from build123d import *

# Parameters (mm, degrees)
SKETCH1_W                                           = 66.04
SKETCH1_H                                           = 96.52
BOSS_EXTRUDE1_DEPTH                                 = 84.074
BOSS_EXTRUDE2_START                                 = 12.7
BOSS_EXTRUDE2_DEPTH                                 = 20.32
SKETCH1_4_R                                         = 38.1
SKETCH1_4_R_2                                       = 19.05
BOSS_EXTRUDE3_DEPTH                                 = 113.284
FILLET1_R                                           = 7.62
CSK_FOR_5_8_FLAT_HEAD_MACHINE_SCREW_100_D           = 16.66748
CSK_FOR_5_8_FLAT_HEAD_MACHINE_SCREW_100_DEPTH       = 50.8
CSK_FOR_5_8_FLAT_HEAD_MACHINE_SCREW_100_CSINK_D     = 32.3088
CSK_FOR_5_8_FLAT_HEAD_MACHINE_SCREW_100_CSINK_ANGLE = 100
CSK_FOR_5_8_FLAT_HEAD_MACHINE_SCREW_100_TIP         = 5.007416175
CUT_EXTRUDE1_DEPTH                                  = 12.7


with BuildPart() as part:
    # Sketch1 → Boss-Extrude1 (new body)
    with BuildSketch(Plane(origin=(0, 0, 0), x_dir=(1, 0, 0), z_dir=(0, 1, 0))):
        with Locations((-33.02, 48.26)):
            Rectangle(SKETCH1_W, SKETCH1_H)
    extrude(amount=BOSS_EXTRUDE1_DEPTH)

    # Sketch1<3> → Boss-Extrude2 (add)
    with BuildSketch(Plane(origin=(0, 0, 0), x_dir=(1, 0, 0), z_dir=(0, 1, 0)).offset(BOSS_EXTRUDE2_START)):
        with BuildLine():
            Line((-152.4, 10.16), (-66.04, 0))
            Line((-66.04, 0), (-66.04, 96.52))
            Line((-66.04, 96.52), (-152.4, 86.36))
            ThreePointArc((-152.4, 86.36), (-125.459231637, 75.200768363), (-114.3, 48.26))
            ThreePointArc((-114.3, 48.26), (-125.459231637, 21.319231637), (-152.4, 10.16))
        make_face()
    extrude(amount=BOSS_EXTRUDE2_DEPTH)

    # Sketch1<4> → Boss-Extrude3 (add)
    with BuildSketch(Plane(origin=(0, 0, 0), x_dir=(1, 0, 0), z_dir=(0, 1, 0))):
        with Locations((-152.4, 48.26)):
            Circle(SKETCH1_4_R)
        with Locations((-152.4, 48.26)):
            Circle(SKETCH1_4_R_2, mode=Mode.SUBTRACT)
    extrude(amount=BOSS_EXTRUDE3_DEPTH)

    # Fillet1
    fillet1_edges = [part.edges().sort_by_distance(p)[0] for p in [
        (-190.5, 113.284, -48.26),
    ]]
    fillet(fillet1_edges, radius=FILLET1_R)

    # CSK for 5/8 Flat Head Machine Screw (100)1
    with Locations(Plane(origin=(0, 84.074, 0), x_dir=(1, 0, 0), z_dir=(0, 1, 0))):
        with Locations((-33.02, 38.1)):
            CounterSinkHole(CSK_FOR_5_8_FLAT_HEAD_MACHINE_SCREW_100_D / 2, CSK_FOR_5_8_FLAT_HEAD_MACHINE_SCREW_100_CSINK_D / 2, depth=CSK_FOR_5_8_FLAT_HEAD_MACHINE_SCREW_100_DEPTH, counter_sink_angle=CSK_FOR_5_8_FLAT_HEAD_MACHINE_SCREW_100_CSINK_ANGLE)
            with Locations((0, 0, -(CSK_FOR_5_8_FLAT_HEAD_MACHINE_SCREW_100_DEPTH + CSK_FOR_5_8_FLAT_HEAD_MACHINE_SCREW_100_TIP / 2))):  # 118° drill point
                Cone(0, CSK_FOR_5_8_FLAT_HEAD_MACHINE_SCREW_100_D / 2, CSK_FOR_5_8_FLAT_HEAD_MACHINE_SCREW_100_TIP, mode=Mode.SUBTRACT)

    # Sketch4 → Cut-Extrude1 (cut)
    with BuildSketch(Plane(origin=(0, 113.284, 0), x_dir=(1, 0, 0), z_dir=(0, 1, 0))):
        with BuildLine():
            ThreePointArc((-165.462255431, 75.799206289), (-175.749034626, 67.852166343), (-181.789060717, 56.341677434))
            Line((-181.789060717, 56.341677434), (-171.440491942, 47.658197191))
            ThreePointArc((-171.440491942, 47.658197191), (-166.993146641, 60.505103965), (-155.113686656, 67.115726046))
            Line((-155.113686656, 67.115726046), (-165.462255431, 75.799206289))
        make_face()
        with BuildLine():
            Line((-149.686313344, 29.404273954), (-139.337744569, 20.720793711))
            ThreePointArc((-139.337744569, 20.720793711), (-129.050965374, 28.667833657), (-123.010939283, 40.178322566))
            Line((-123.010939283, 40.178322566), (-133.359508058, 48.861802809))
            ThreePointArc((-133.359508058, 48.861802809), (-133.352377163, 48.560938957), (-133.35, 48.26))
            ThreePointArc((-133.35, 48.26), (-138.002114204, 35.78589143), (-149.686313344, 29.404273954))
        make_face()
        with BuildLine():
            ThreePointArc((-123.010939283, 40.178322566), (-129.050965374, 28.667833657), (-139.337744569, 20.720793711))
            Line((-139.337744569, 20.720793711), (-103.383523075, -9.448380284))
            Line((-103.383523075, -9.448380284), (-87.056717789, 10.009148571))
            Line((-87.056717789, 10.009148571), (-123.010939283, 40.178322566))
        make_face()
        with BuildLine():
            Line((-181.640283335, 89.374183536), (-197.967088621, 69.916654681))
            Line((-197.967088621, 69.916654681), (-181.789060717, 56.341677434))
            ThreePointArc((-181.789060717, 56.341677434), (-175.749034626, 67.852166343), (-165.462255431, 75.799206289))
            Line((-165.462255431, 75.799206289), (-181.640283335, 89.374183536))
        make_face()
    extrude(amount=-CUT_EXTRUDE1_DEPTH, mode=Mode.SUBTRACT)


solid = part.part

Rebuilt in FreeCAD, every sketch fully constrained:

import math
import FreeCAD as App
import Part
import Sketcher

V = App.Vector
Q = App.Units.Quantity


def edges_at(feature, points):
    """Names of the edges that pass closest to the given points."""
    edges = feature.Shape.Edges
    near = lambda p: min(range(len(edges)), key=lambda i: edges[i].distToShape(Part.Vertex(*p))[0])
    return sorted({f"Edge{near(p) + 1}" for p in points})

doc = App.newDocument("Part")
body = doc.addObject("PartDesign::Body", "Body")

sketch1 = doc.addObject("Sketcher::SketchObject", "Sketch")
body.addObject(sketch1)
sketch1.AttachmentSupport = (doc.XZ_Plane, [""])
sketch1.MapMode = "FlatFace"
sketch1.addGeometry([
    Part.LineSegment(V(-66, -97, 0), V(-66, 0, 0)),
    Part.LineSegment(V(-66, 0, 0), V(0, 0, 0)),
    Part.LineSegment(V(0, 0, 0), V(0, -97, 0)),
    Part.LineSegment(V(0, -97, 0), V(-66, -97, 0)),
], False)
sketch1.addConstraint([
    Sketcher.Constraint("Coincident", 0, 2, 1, 1),
    Sketcher.Constraint("Coincident", 1, 2, 2, 1),
    Sketcher.Constraint("Coincident", 2, 2, 3, 1),
    Sketcher.Constraint("Coincident", 3, 2, 0, 1),
    Sketcher.Constraint("Vertical", 0),
    Sketcher.Constraint("Horizontal", 1),
    Sketcher.Constraint("Vertical", 2),
    Sketcher.Constraint("Horizontal", 3),
    Sketcher.Constraint("Coincident", 1, 2, -1, 1),
    Sketcher.Constraint("DistanceX", 1, 1, 1, 2, Q("2.6 in")),
    Sketcher.Constraint("DistanceY", 0, 1, 0, 2, Q("3.8 in")),
])
pad1 = doc.addObject("PartDesign::Pad", "Pad")
body.addObject(pad1)
pad1.Profile = sketch1
pad1.Length = Q("3.31 in")
pad1.Reversed = True

sketch2 = doc.addObject("Sketcher::SketchObject", "Sketch001")
body.addObject(sketch2)
sketch2.AttachmentSupport = (doc.XZ_Plane, [""])
sketch2.MapMode = "FlatFace"
sketch2.AttachmentOffset = App.Placement(V(0, 0, -0.5 * 25.4), App.Rotation())
sketch2.addGeometry([
    Part.LineSegment(V(-152, -10, 0), V(-66, 0, 0)),
    Part.LineSegment(V(-66, 0, 0), V(-66, -97, 0)),
    Part.LineSegment(V(-66, -97, 0), V(-152, -86, 0)),
    Part.ArcOfCircle(Part.Circle(V(-152, -48, 0), V(0, 0, 1), 38), math.radians(-90), math.radians(0)),
    Part.ArcOfCircle(Part.Circle(V(-152, -48, 0), V(0, 0, 1), 38), math.radians(0), math.radians(90)),
], False)
sketch2.addConstraint([
    Sketcher.Constraint("Coincident", 0, 2, 1, 1),
    Sketcher.Constraint("Coincident", 1, 2, 2, 1),
    Sketcher.Constraint("Coincident", 2, 2, 3, 1),
    Sketcher.Constraint("Tangent", 3, 2, 4, 1),
    Sketcher.Constraint("Coincident", 4, 2, 0, 1),
    Sketcher.Constraint("Vertical", 1),
    Sketcher.Constraint("Equal", 3, 4),
    Sketcher.Constraint("PointOnObject", 0, 2, -1),
    Sketcher.Constraint("Horizontal", 4, 3, 3, 2),
    Sketcher.Constraint("Vertical", 4, 3, 2, 2),
    Sketcher.Constraint("Vertical", 2, 2, 4, 2),
    Sketcher.Constraint("Equal", 0, 2),
    Sketcher.Constraint("Radius", 3, Q("1.5 in")),
    Sketcher.Constraint("DistanceY", 1, 2, 1, 1, Q("3.8 in")),
    Sketcher.Constraint("DistanceX", 3, 3, -1, 1, Q("6 in")),
    Sketcher.Constraint("DistanceX", 0, 2, -1, 1, Q("2.6 in")),
])
pad2 = doc.addObject("PartDesign::Pad", "Pad001")
body.addObject(pad2)
pad2.Profile = sketch2
pad2.Length = Q("0.8 in")
pad2.Reversed = True

sketch3 = doc.addObject("Sketcher::SketchObject", "Sketch002")
body.addObject(sketch3)
sketch3.AttachmentSupport = (doc.XZ_Plane, [""])
sketch3.MapMode = "FlatFace"
sketch3.addGeometry([
    Part.Circle(V(-152, -48, 0), V(0, 0, 1), 38),
    Part.Circle(V(-152, -48, 0), V(0, 0, 1), 19),
], False)
sketch3.addConstraint([
    Sketcher.Constraint("Coincident", 1, 3, 0, 3),
    Sketcher.Constraint("Diameter", 0, Q("3 in")),
    Sketcher.Constraint("Diameter", 1, Q("1.5 in")),
    Sketcher.Constraint("DistanceX", 0, 3, -1, 1, Q("6 in")),
    Sketcher.Constraint("DistanceY", 0, 3, -1, 1, Q("1.9 in")),
])
pad3 = doc.addObject("PartDesign::Pad", "Pad002")
body.addObject(pad3)
pad3.Profile = sketch3
pad3.Length = Q("4.46 in")
pad3.Reversed = True
doc.recompute()

fillet = doc.addObject("PartDesign::Fillet", "Fillet")
body.addObject(fillet)
fillet.Base = (pad3, edges_at(pad3, [(-190.5, 113.284, -48.26)]))
fillet.Radius = Q("0.3 in")

sketch4 = doc.addObject("Sketcher::SketchObject", "Sketch003")
body.addObject(sketch4)
sketch4.AttachmentSupport = (doc.XZ_Plane, [""])
sketch4.MapMode = "FlatFace"
sketch4.AttachmentOffset = App.Placement(V(0, 0, -3.31 * 25.4), App.Rotation())
sketch4.addGeometry(Part.Circle(V(-33, -38, 0), V(0, 0, 1), 8), False)
sketch4.addConstraint([
    Sketcher.Constraint("Diameter", 0, Q("0.6562 in")),
    Sketcher.Constraint("DistanceX", 0, 3, -1, 1, Q("1.3 in")),
    Sketcher.Constraint("DistanceY", 0, 3, -1, 1, Q("1.5 in")),
])
doc.recompute()
hole = doc.addObject("PartDesign::Hole", "Hole")
body.addObject(hole)
hole.Profile = sketch4
hole.ThreadType = "None"
hole.Diameter = Q("0.6562 in")
hole.DepthType = "Dimension"
hole.Depth = Q("2 in")
hole.DrillPoint = "Angled"
hole.DrillPointAngle = 118
hole.HoleCutType = "Countersink"
hole.HoleCutDiameter = Q("1.272 in")
hole.HoleCutCountersinkAngle = 100
hole.Reversed = True

sketch5 = doc.addObject("Sketcher::SketchObject", "Sketch004")
body.addObject(sketch5)
sketch5.AttachmentSupport = (doc.XZ_Plane, [""])
sketch5.MapMode = "FlatFace"
sketch5.AttachmentOffset = App.Placement(V(0, 0, -4.46 * 25.4), App.Rotation())
sketch5.addGeometry([
    Part.LineSegment(V(-181.8, -56.3, 0), V(-171.4, -47.7, 0)),
    Part.ArcOfCircle(Part.Circle(V(-152.4, -48.3, 0), V(0, 0, 1), 19.1), math.radians(178), math.radians(262)),
    Part.LineSegment(V(-155.1, -67.1, 0), V(-165.5, -75.8, 0)),
    Part.LineSegment(V(-165.5, -75.8, 0), V(-181.6, -89.4, 0)),
    Part.LineSegment(V(-181.6, -89.4, 0), V(-198, -69.9, 0)),
    Part.LineSegment(V(-198, -69.9, 0), V(-181.8, -56.3, 0)),
    Part.ArcOfCircle(Part.Circle(V(-152.4, -48.3, 0), V(0, 0, 1), 19), math.radians(0), math.radians(82)),
    Part.LineSegment(V(-149.7, -29.4, 0), V(-139.3, -20.7, 0)),
    Part.LineSegment(V(-139.3, -20.7, 0), V(-103.4, 9.4, 0)),
    Part.LineSegment(V(-103.4, 9.4, 0), V(-87.1, -10, 0)),
    Part.LineSegment(V(-87.1, -10, 0), V(-123, -40.2, 0)),
    Part.LineSegment(V(-123, -40.2, 0), V(-133.4, -48.9, 0)),
    Part.ArcOfCircle(Part.Circle(V(-152.4, -48.3, 0), V(0, 0, 1), 19.1), math.radians(-1.81), math.radians(0)),
], False)
sketch5.addConstraint([
    Sketcher.Constraint("Coincident", 0, 2, 1, 1),
    Sketcher.Constraint("Coincident", 1, 2, 2, 1),
    Sketcher.Constraint("Coincident", 2, 2, 3, 1),
    Sketcher.Constraint("Coincident", 3, 2, 4, 1),
    Sketcher.Constraint("Coincident", 4, 2, 5, 1),
    Sketcher.Constraint("Coincident", 5, 2, 0, 1),
    Sketcher.Constraint("Coincident", 6, 2, 7, 1),
    Sketcher.Constraint("Coincident", 7, 2, 8, 1),
    Sketcher.Constraint("Coincident", 8, 2, 9, 1),
    Sketcher.Constraint("Coincident", 9, 2, 10, 1),
    Sketcher.Constraint("Coincident", 10, 2, 11, 1),
    Sketcher.Constraint("Coincident", 11, 2, 12, 1),
    Sketcher.Constraint("Tangent", 12, 2, 6, 1),
    Sketcher.Constraint("Coincident", 6, 3, 1, 3),
    Sketcher.Constraint("Equal", 1, 6),
    Sketcher.Constraint("Parallel", 0, 2),
    Sketcher.Constraint("Parallel", 2, 3),
    Sketcher.Constraint("Perpendicular", 3, 4),
    Sketcher.Constraint("Perpendicular", 4, 5),
    Sketcher.Constraint("Parallel", 5, 7),
    Sketcher.Constraint("Parallel", 7, 8),
    Sketcher.Constraint("Perpendicular", 8, 9),
    Sketcher.Constraint("Perpendicular", 9, 10),
    Sketcher.Constraint("Parallel", 10, 11),
    Sketcher.Constraint("Horizontal", 6, 3, 12, 2),
    Sketcher.Constraint("Equal", 0, 2),
    Sketcher.Constraint("Equal", 3, 5),
    Sketcher.Constraint("Equal", 2, 7),
    Sketcher.Constraint("Equal", 4, 9),
    Sketcher.Constraint("Equal", 8, 10),
    Sketcher.Constraint("Equal", 7, 11),
    Sketcher.Constraint("Radius", 1, Q("0.75 in")),
    Sketcher.Constraint("Radius", 12, Q("0.7500001 in")),
    Sketcher.Constraint("Distance", 4, Q("1 in")),
    Sketcher.Constraint("DistanceX", 1, 3, -1, 1, Q("6 in")),
    Sketcher.Constraint("Angle", 0, Q("40 deg")),
    Sketcher.Constraint("DistanceY", 1, 3, -1, 1, Q("1.9 in")),
    Sketcher.Constraint("DistanceX", 4, 2, 1, 2, 42.853402),
    Sketcher.Constraint("DistanceX", 5, 2, -1, 1, 181.789061),
    Sketcher.Constraint("DistanceY", -1, 1, 8, 2, 9.44838),
])
pocket1 = doc.addObject("PartDesign::Pocket", "Pocket")
body.addObject(pocket1)
pocket1.Profile = sketch5
pocket1.Length = Q("0.5 in")
pocket1.Reversed = True

doc.recompute()
